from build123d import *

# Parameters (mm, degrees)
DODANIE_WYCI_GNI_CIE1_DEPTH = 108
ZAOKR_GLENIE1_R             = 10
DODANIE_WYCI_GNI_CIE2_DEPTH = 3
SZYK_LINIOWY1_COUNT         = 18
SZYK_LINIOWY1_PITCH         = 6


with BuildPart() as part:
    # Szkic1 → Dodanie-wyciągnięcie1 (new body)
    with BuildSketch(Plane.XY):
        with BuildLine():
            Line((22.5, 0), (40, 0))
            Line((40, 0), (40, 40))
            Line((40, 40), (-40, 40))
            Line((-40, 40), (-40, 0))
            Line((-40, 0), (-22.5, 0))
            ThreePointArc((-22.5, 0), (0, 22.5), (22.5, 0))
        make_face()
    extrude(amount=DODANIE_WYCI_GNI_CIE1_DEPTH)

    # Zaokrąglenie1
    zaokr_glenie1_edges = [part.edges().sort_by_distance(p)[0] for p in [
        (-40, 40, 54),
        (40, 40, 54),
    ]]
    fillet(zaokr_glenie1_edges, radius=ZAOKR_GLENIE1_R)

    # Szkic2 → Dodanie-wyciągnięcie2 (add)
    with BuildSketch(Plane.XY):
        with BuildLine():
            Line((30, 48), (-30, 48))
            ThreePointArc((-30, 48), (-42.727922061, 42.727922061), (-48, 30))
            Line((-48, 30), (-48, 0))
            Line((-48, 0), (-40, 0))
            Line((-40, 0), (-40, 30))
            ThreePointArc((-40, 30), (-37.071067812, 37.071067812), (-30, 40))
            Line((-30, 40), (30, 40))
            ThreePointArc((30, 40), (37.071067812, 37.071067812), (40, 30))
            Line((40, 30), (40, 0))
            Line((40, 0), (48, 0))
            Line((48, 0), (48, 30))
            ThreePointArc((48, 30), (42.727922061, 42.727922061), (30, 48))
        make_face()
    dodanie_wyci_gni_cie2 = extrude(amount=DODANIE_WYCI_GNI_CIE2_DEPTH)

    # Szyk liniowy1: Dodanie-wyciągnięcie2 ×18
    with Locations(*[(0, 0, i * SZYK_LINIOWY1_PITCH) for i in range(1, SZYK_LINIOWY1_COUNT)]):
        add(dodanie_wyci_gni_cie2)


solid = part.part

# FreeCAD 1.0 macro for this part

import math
import FreeCAD as App
import Part
import Sketcher

V = App.Vector
Q = App.Units.Quantity


def edges_at(feature, points):
    """Names of the edges that pass closest to the given points."""
    edges = feature.Shape.Edges
    near = lambda p: min(range(len(edges)), key=lambda i: edges[i].distToShape(Part.Vertex(*p))[0])
    return sorted({f"Edge{near(p) + 1}" for p in points})

doc = App.newDocument("Part")
body = doc.addObject("PartDesign::Body", "Body")

sketch1 = body.newObject("Sketcher::SketchObject", "Sketch")
sketch1.AttachmentSupport = (doc.getObject("XY_Plane"), [""])
sketch1.MapMode = "FlatFace"
sketch1.addGeometry(Part.LineSegment(V(22.5, 0, 0), V(40, 0, 0)), False)
sketch1.addGeometry(Part.LineSegment(V(40, 0, 0), V(40, 40, 0)), False)
sketch1.addGeometry(Part.LineSegment(V(40, 40, 0), V(-40, 40, 0)), False)
sketch1.addGeometry(Part.LineSegment(V(-40, 40, 0), V(-40, 0, 0)), False)
sketch1.addGeometry(Part.LineSegment(V(-40, 0, 0), V(-22.5, 0, 0)), False)
sketch1.addGeometry(Part.ArcOfCircle(Part.Circle(V(0, 0, 0), V(0, 0, 1), 22.5), math.radians(0), math.radians(180)), False)
sketch1.addConstraint(Sketcher.Constraint("Coincident", 0, 2, 1, 1))
sketch1.addConstraint(Sketcher.Constraint("Coincident", 1, 2, 2, 1))
sketch1.addConstraint(Sketcher.Constraint("Coincident", 2, 2, 3, 1))
sketch1.addConstraint(Sketcher.Constraint("Coincident", 3, 2, 4, 1))
sketch1.addConstraint(Sketcher.Constraint("Coincident", 4, 2, 5, 2))
sketch1.addConstraint(Sketcher.Constraint("Coincident", 5, 1, 0, 1))
sketch1.addConstraint(Sketcher.Constraint("Horizontal", 0))
sketch1.addConstraint(Sketcher.Constraint("Vertical", 1))
sketch1.addConstraint(Sketcher.Constraint("Horizontal", 2))
sketch1.addConstraint(Sketcher.Constraint("Vertical", 3))
sketch1.addConstraint(Sketcher.Constraint("Horizontal", 4))
sketch1.addConstraint(Sketcher.Constraint("Coincident", 5, 3, -1, 1))
sketch1.addConstraint(Sketcher.Constraint("Symmetric", 0, 2, 3, 2, -1, 1))
sketch1.addConstraint(Sketcher.Constraint("PointOnObject", 0, 2, -1))
sketch1.addConstraint(Sketcher.Constraint("Radius", 5, Q("22.5 mm")))
sketch1.addConstraint(Sketcher.Constraint("DistanceX", 2, 2, 2, 1, Q("80 mm")))
sketch1.addConstraint(Sketcher.Constraint("DistanceY", 1, 1, 1, 2, Q("40 mm")))
pad1 = body.newObject("PartDesign::Pad", "Pad")
pad1.Profile = sketch1
pad1.Length = 108
doc.recompute()

fillet = body.newObject("PartDesign::Fillet", "Fillet")
fillet.Base = (pad1, edges_at(pad1, [(-40, 40, 54), (40, 40, 54)]))
fillet.Radius = 10

sketch2 = body.newObject("Sketcher::SketchObject", "Sketch001")
sketch2.AttachmentSupport = (doc.getObject("XY_Plane"), [""])
sketch2.MapMode = "FlatFace"
sketch2.addGeometry(Part.LineSegment(V(30, 48, 0), V(-30, 48, 0)), False)
sketch2.addGeometry(Part.ArcOfCircle(Part.Circle(V(-30, 30, 0), V(0, 0, 1), 18), math.radians(90), math.radians(180)), False)
sketch2.addGeometry(Part.LineSegment(V(-48, 30, 0), V(-48, 0, 0)), False)
sketch2.addGeometry(Part.LineSegment(V(-48, 0, 0), V(-40, 0, 0)), False)
sketch2.addGeometry(Part.LineSegment(V(-40, 0, 0), V(-40, 30, 0)), False)
sketch2.addGeometry(Part.ArcOfCircle(Part.Circle(V(-30, 30, 0), V(0, 0, 1), 10), math.radians(90), math.radians(180)), False)
sketch2.addGeometry(Part.LineSegment(V(-30, 40, 0), V(30, 40, 0)), False)
sketch2.addGeometry(Part.ArcOfCircle(Part.Circle(V(30, 30, 0), V(0, 0, 1), 10), math.radians(0), math.radians(90)), False)
sketch2.addGeometry(Part.LineSegment(V(40, 30, 0), V(40, 0, 0)), False)
sketch2.addGeometry(Part.LineSegment(V(40, 0, 0), V(48, 0, 0)), False)
sketch2.addGeometry(Part.LineSegment(V(48, 0, 0), V(48, 30, 0)), False)
sketch2.addGeometry(Part.ArcOfCircle(Part.Circle(V(30, 30, 0), V(0, 0, 1), 18), math.radians(0), math.radians(90)), False)
sketch2.addConstraint(Sketcher.Constraint("Tangent", 0, 2, 1, 1))
sketch2.addConstraint(Sketcher.Constraint("Tangent", 1, 2, 2, 1))
sketch2.addConstraint(Sketcher.Constraint("Coincident", 2, 2, 3, 1))
sketch2.addConstraint(Sketcher.Constraint("Coincident", 3, 2, 4, 1))
sketch2.addConstraint(Sketcher.Constraint("Tangent", 4, 2, 5, 2))
sketch2.addConstraint(Sketcher.Constraint("Tangent", 5, 1, 6, 1))
sketch2.addConstraint(Sketcher.Constraint("Tangent", 6, 2, 7, 2))
sketch2.addConstraint(Sketcher.Constraint("Tangent", 7, 1, 8, 1))
sketch2.addConstraint(Sketcher.Constraint("Coincident", 8, 2, 9, 1))
sketch2.addConstraint(Sketcher.Constraint("Coincident", 9, 2, 10, 1))
sketch2.addConstraint(Sketcher.Constraint("Tangent", 10, 2, 11, 1))
sketch2.addConstraint(Sketcher.Constraint("Tangent", 11, 2, 0, 1))
sketch2.addConstraint(Sketcher.Constraint("Horizontal", 0))
sketch2.addConstraint(Sketcher.Constraint("Vertical", 2))
sketch2.addConstraint(Sketcher.Constraint("Horizontal", 3))
sketch2.addConstraint(Sketcher.Constraint("Vertical", 4))
sketch2.addConstraint(Sketcher.Constraint("Horizontal", 6))
sketch2.addConstraint(Sketcher.Constraint("Vertical", 8))
sketch2.addConstraint(Sketcher.Constraint("Horizontal", 9))
sketch2.addConstraint(Sketcher.Constraint("Vertical", 10))
sketch2.addConstraint(Sketcher.Constraint("Coincident", 5, 3, 1, 3))
sketch2.addConstraint(Sketcher.Constraint("Coincident", 11, 3, 7, 3))
sketch2.addConstraint(Sketcher.Constraint("Equal", 5, 7))
sketch2.addConstraint(Sketcher.Constraint("Symmetric", 3, 2, 8, 2, -1, 1))
sketch2.addConstraint(Sketcher.Constraint("PointOnObject", 2, 2, -1))
sketch2.addConstraint(Sketcher.Constraint("Radius", 1, Q("18 mm")))
sketch2.addConstraint(Sketcher.Constraint("Radius", 5, Q("10 mm")))
sketch2.addConstraint(Sketcher.Constraint("DistanceX", 0, 2, 0, 1, Q("60 mm")))
sketch2.addConstraint(Sketcher.Constraint("DistanceY", 2, 2, 2, 1, Q("30 mm")))
pad2 = body.newObject("PartDesign::Pad", "Pad001")
pad2.Profile = sketch2
pad2.Length = 3
doc.recompute()

linearpattern = body.newObject("PartDesign::LinearPattern", "LinearPattern")
linearpattern.Originals = [pad2]
linearpattern.Direction = (doc.getObject("Z_Axis"), [""])
linearpattern.Mode = "offset"
linearpattern.Offset = 6
linearpattern.Occurrences = 18
body.Tip = linearpattern

doc.recompute()
